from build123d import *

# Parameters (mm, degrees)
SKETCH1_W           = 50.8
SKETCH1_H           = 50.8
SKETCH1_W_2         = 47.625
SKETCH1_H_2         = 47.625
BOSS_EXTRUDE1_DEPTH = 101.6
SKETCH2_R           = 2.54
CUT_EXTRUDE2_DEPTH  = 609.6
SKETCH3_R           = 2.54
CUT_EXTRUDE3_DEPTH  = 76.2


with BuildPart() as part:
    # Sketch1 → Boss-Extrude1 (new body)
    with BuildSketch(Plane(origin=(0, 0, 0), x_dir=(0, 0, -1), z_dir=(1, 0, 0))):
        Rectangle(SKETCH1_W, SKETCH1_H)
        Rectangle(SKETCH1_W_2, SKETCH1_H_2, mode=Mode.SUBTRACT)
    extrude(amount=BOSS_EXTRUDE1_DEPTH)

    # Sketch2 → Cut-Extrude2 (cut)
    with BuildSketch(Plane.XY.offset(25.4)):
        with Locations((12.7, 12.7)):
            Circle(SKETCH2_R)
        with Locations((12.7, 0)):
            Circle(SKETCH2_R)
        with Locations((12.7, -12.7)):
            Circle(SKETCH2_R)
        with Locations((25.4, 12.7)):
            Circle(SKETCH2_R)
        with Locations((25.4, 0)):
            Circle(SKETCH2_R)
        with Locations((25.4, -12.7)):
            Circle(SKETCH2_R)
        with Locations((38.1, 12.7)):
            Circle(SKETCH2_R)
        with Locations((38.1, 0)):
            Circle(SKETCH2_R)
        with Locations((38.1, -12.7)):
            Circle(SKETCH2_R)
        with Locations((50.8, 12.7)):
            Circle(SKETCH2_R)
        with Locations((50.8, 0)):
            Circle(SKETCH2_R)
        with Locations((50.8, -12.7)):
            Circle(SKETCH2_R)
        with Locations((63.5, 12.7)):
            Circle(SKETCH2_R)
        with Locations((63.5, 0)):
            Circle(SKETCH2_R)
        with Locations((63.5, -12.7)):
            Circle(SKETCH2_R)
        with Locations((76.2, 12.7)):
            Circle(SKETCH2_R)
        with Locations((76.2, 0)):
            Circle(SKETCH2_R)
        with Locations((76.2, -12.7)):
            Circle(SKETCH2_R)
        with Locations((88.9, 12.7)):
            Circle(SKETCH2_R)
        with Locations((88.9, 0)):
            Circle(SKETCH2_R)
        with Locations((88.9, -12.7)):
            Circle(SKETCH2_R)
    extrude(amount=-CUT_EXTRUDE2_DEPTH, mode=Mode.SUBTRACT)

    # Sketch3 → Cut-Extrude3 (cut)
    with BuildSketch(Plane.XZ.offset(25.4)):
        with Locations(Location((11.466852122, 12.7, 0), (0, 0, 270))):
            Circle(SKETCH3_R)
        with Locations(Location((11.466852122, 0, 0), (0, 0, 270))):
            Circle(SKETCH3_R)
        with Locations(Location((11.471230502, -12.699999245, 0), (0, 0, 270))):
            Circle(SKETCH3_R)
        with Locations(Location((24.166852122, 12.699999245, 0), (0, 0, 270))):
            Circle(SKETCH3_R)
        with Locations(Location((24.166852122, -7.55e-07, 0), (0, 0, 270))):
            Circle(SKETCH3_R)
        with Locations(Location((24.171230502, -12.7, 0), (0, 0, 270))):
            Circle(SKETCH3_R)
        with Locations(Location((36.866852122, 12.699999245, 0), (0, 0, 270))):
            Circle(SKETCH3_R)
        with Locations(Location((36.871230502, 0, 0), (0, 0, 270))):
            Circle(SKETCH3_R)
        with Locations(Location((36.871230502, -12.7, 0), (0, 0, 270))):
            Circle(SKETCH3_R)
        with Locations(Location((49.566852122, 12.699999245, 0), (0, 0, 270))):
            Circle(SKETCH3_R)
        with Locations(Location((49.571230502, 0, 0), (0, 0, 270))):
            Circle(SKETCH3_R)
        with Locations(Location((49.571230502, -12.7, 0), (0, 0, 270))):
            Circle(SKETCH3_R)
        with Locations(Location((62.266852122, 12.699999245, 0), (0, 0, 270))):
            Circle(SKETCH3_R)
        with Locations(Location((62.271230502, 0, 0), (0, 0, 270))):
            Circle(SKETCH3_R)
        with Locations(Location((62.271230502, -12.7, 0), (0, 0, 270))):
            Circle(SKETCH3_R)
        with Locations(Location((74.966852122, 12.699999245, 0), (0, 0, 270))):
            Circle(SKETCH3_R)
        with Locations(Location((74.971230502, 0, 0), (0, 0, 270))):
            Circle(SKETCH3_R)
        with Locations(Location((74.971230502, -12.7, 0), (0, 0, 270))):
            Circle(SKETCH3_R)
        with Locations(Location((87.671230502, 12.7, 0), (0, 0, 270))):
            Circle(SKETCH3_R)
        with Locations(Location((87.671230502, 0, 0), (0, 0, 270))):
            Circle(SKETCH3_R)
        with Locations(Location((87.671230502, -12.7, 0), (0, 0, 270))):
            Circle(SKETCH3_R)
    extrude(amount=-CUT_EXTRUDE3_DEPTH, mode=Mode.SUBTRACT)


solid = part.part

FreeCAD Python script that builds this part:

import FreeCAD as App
import Part
import Sketcher
Q = App.Units.Quantity

doc = App.newDocument("Part")
body = doc.addObject("PartDesign::Body", "Body")

sketch1 = body.newObject("Sketcher::SketchObject", "Sketch")
sketch1.AttachmentSupport = (doc.getObject("YZ_Plane"), [""])
sketch1.MapMode = "FlatFace"
sketch1.addGeometry([
    Part.LineSegment(App.Vector(25.4, 25.4, 0), App.Vector(-25.4, 25.4, 0)),
    Part.LineSegment(App.Vector(-25.4, 25.4, 0), App.Vector(-25.4, -25.4, 0)),
    Part.LineSegment(App.Vector(-25.4, -25.4, 0), App.Vector(25.4, -25.4, 0)),
    Part.LineSegment(App.Vector(25.4, -25.4, 0), App.Vector(25.4, 25.4, 0)),
    Part.LineSegment(App.Vector(-23.8125, -23.8125, 0), App.Vector(-23.8125, 23.8125, 0)),
    Part.LineSegment(App.Vector(-23.8125, 23.8125, 0), App.Vector(23.8125, 23.8125, 0)),
    Part.LineSegment(App.Vector(23.8125, 23.8125, 0), App.Vector(23.8125, -23.8125, 0)),
    Part.LineSegment(App.Vector(23.8125, -23.8125, 0), App.Vector(-23.8125, -23.8125, 0)),
], False)
sketch1.addConstraint([
    Sketcher.Constraint("Coincident", 0, 2, 1, 1),
    Sketcher.Constraint("Coincident", 1, 2, 2, 1),
    Sketcher.Constraint("Coincident", 2, 2, 3, 1),
    Sketcher.Constraint("Coincident", 3, 2, 0, 1),
    Sketcher.Constraint("Coincident", 4, 2, 5, 1),
    Sketcher.Constraint("Coincident", 5, 2, 6, 1),
    Sketcher.Constraint("Coincident", 6, 2, 7, 1),
    Sketcher.Constraint("Coincident", 7, 2, 4, 1),
    Sketcher.Constraint("Horizontal", 0),
    Sketcher.Constraint("Vertical", 1),
    Sketcher.Constraint("Horizontal", 2),
    Sketcher.Constraint("Vertical", 3),
    Sketcher.Constraint("Vertical", 4),
    Sketcher.Constraint("Horizontal", 5),
    Sketcher.Constraint("Vertical", 6),
    Sketcher.Constraint("Horizontal", 7),
    Sketcher.Constraint("Symmetric", 0, 2, 2, 2, -1, 1),
    Sketcher.Constraint("Symmetric", 4, 2, 6, 2, -1, 1),
    Sketcher.Constraint("Equal", 2, 1),
    Sketcher.Constraint("Equal", 7, 4),
    Sketcher.Constraint("DistanceX", 0, 2, 0, 1, Q("2 in")),
    Sketcher.Constraint("DistanceX", 5, 1, 5, 2, Q("1.875 in")),
])
pad1 = body.newObject("PartDesign::Pad", "Pad")
pad1.Profile = sketch1
pad1.Length = Q("4 in")

sketch2 = body.newObject("Sketcher::SketchObject", "Sketch001")
sketch2.AttachmentSupport = (doc.getObject("XY_Plane"), [""])
sketch2.MapMode = "FlatFace"
sketch2.AttachmentOffset = App.Placement(App.Vector(0, 0, 1 * 25.4), App.Rotation())
sketch2.addGeometry([
    Part.Circle(App.Vector(12.7, 12.7, 0), App.Vector(0, 0, 1), 2.54),
    Part.Circle(App.Vector(12.7, 0, 0), App.Vector(0, 0, 1), 2.54),
    Part.Circle(App.Vector(12.7, -12.7, 0), App.Vector(0, 0, 1), 2.54),
    Part.Circle(App.Vector(25.4, 12.7, 0), App.Vector(0, 0, 1), 2.54),
    Part.Circle(App.Vector(25.4, 0, 0), App.Vector(0, 0, 1), 2.54),
    Part.Circle(App.Vector(25.4, -12.7, 0), App.Vector(0, 0, 1), 2.54),
    Part.Circle(App.Vector(38.1, 12.7, 0), App.Vector(0, 0, 1), 2.54),
    Part.Circle(App.Vector(38.1, 0, 0), App.Vector(0, 0, 1), 2.54),
    Part.Circle(App.Vector(38.1, -12.7, 0), App.Vector(0, 0, 1), 2.54),
    Part.Circle(App.Vector(50.8, 12.7, 0), App.Vector(0, 0, 1), 2.54),
    Part.Circle(App.Vector(50.8, 0, 0), App.Vector(0, 0, 1), 2.54),
    Part.Circle(App.Vector(50.8, -12.7, 0), App.Vector(0, 0, 1), 2.54),
    Part.Circle(App.Vector(63.5, 12.7, 0), App.Vector(0, 0, 1), 2.54),
    Part.Circle(App.Vector(63.5, 0, 0), App.Vector(0, 0, 1), 2.54),
    Part.Circle(App.Vector(63.5, -12.7, 0), App.Vector(0, 0, 1), 2.54),
    Part.Circle(App.Vector(76.2, 12.7, 0), App.Vector(0, 0, 1), 2.54),
    Part.Circle(App.Vector(76.2, 0, 0), App.Vector(0, 0, 1), 2.54),
    Part.Circle(App.Vector(76.2, -12.7, 0), App.Vector(0, 0, 1), 2.54),
    Part.Circle(App.Vector(88.9, 12.7, 0), App.Vector(0, 0, 1), 2.54),
    Part.Circle(App.Vector(88.9, 0, 0), App.Vector(0, 0, 1), 2.54),
    Part.Circle(App.Vector(88.9, -12.7, 0), App.Vector(0, 0, 1), 2.54),
], False)
sketch2.addConstraint([
    Sketcher.Constraint("Equal", 0, 1),
    Sketcher.Constraint("Equal", 1, 2),
    Sketcher.Constraint("Equal", 2, 3),
    Sketcher.Constraint("Equal", 3, 4),
    Sketcher.Constraint("Equal", 4, 5),
    Sketcher.Constraint("Equal", 5, 6),
    Sketcher.Constraint("Equal", 6, 7),
    Sketcher.Constraint("Equal", 7, 8),
    Sketcher.Constraint("Equal", 8, 9),
    Sketcher.Constraint("Equal", 9, 10),
    Sketcher.Constraint("Equal", 10, 11),
    Sketcher.Constraint("Equal", 11, 12),
    Sketcher.Constraint("Equal", 12, 13),
    Sketcher.Constraint("Equal", 13, 14),
    Sketcher.Constraint("Equal", 14, 15),
    Sketcher.Constraint("Equal", 15, 16),
    Sketcher.Constraint("Equal", 16, 17),
    Sketcher.Constraint("Equal", 17, 18),
    Sketcher.Constraint("Equal", 18, 19),
    Sketcher.Constraint("Equal", 19, 20),
    Sketcher.Constraint("Symmetric", 0, 3, 2, 3, -1),
    Sketcher.Constraint("Symmetric", 3, 3, 5, 3, -1),
    Sketcher.Constraint("Symmetric", 6, 3, 8, 3, -1),
    Sketcher.Constraint("Symmetric", 9, 3, 11, 3, -1),
    Sketcher.Constraint("Symmetric", 12, 3, 14, 3, -1),
    Sketcher.Constraint("Symmetric", 15, 3, 17, 3, -1),
    Sketcher.Constraint("Symmetric", 18, 3, 20, 3, -1),
    Sketcher.Constraint("PointOnObject", 1, 3, -1),
    Sketcher.Constraint("PointOnObject", 4, 3, -1),
    Sketcher.Constraint("PointOnObject", 7, 3, -1),
    Sketcher.Constraint("PointOnObject", 10, 3, -1),
    Sketcher.Constraint("PointOnObject", 13, 3, -1),
    Sketcher.Constraint("PointOnObject", 16, 3, -1),
    Sketcher.Constraint("PointOnObject", 19, 3, -1),
    Sketcher.Constraint("Horizontal", 0, 3, 3, 3),
    Sketcher.Constraint("Horizontal", 3, 3, 6, 3),
    Sketcher.Constraint("Horizontal", 6, 3, 9, 3),
    Sketcher.Constraint("Horizontal", 9, 3, 12, 3),
    Sketcher.Constraint("Horizontal", 12, 3, 15, 3),
    Sketcher.Constraint("Horizontal", 15, 3, 18, 3),
    Sketcher.Constraint("Vertical", 0, 3, 1, 3),
    Sketcher.Constraint("Vertical", 3, 3, 4, 3),
    Sketcher.Constraint("Vertical", 6, 3, 7, 3),
    Sketcher.Constraint("Vertical", 9, 3, 10, 3),
    Sketcher.Constraint("Vertical", 12, 3, 13, 3),
    Sketcher.Constraint("Vertical", 15, 3, 16, 3),
    Sketcher.Constraint("Vertical", 18, 3, 19, 3),
    Sketcher.Constraint("Diameter", 0, Q("0.2 in")),
    Sketcher.Constraint("DistanceX", -1, 1, 3, 3, Q("1 in")),
    Sketcher.Constraint("DistanceX", -1, 1, 9, 3, Q("2 in")),
    Sketcher.Constraint("DistanceX", -1, 1, 15, 3, Q("3 in")),
    Sketcher.Constraint("DistanceY", 2, 3, 0, 3, Q("1 in")),
    Sketcher.Constraint("DistanceX", 0, 3, 6, 3, Q("1 in")),
    Sketcher.Constraint("DistanceX", 6, 3, 12, 3, Q("1 in")),
    Sketcher.Constraint("DistanceX", 12, 3, 18, 3, Q("1 in")),
    Sketcher.Constraint("DistanceX", -1, 1, 0, 3, Q("0.5 in")),
])
pocket1 = body.newObject("PartDesign::Pocket", "Pocket")
pocket1.Profile = sketch2
pocket1.Length = Q("24 in")

sketch3 = body.newObject("Sketcher::SketchObject", "Sketch002")
sketch3.AttachmentSupport = (doc.getObject("XZ_Plane"), [""])
sketch3.MapMode = "FlatFace"
sketch3.AttachmentOffset = App.Placement(App.Vector(0, 0, 1 * 25.4), App.Rotation())
sketch3.addGeometry([
    Part.Circle(App.Vector(11.466852, 12.7, 0), App.Vector(0, 0, 1), 2.54),
    Part.Circle(App.Vector(11.466852, 0, 0), App.Vector(0, 0, 1), 2.54),
    Part.Circle(App.Vector(11.471231, -12.699999, 0), App.Vector(0, 0, 1), 2.54),
    Part.Circle(App.Vector(24.166852, 12.699999, 0), App.Vector(0, 0, 1), 2.54),
    Part.Circle(App.Vector(24.166852, -0.000001, 0), App.Vector(0, 0, 1), 2.54),
    Part.Circle(App.Vector(24.171231, -12.7, 0), App.Vector(0, 0, 1), 2.54),
    Part.Circle(App.Vector(36.866852, 12.699999, 0), App.Vector(0, 0, 1), 2.54),
    Part.Circle(App.Vector(36.871231, 0, 0), App.Vector(0, 0, 1), 2.54),
    Part.Circle(App.Vector(36.871231, -12.7, 0), App.Vector(0, 0, 1), 2.54),
    Part.Circle(App.Vector(49.566852, 12.699999, 0), App.Vector(0, 0, 1), 2.54),
    Part.Circle(App.Vector(49.571231, 0, 0), App.Vector(0, 0, 1), 2.54),
    Part.Circle(App.Vector(49.571231, -12.7, 0), App.Vector(0, 0, 1), 2.54),
    Part.Circle(App.Vector(62.266852, 12.699999, 0), App.Vector(0, 0, 1), 2.54),
    Part.Circle(App.Vector(62.271231, 0, 0), App.Vector(0, 0, 1), 2.54),
    Part.Circle(App.Vector(62.271231, -12.7, 0), App.Vector(0, 0, 1), 2.54),
    Part.Circle(App.Vector(74.966852, 12.699999, 0), App.Vector(0, 0, 1), 2.54),
    Part.Circle(App.Vector(74.971231, 0, 0), App.Vector(0, 0, 1), 2.54),
    Part.Circle(App.Vector(74.971231, -12.7, 0), App.Vector(0, 0, 1), 2.54),
    Part.Circle(App.Vector(87.671231, 12.7, 0), App.Vector(0, 0, 1), 2.54),
    Part.Circle(App.Vector(87.671231, 0, 0), App.Vector(0, 0, 1), 2.54),
    Part.Circle(App.Vector(87.671231, -12.7, 0), App.Vector(0, 0, 1), 2.54),
], False)
sketch3.addConstraint([
    Sketcher.Constraint("Equal", 0, 1),
    Sketcher.Constraint("Equal", 1, 2),
    Sketcher.Constraint("Equal", 2, 3),
    Sketcher.Constraint("Equal", 3, 4),
    Sketcher.Constraint("Equal", 4, 5),
    Sketcher.Constraint("Equal", 5, 6),
    Sketcher.Constraint("Equal", 6, 7),
    Sketcher.Constraint("Equal", 7, 8),
    Sketcher.Constraint("Equal", 8, 9),
    Sketcher.Constraint("Equal", 9, 10),
    Sketcher.Constraint("Equal", 10, 11),
    Sketcher.Constraint("Equal", 11, 12),
    Sketcher.Constraint("Equal", 12, 13),
    Sketcher.Constraint("Equal", 13, 14),
    Sketcher.Constraint("Equal", 14, 15),
    Sketcher.Constraint("Equal", 15, 16),
    Sketcher.Constraint("Equal", 16, 17),
    Sketcher.Constraint("Equal", 17, 18),
    Sketcher.Constraint("Equal", 18, 19),
    Sketcher.Constraint("Equal", 19, 20),
    Sketcher.Constraint("Symmetric", 18, 3, 20, 3, -1),
    Sketcher.Constraint("PointOnObject", 1, 3, -1),
    Sketcher.Constraint("PointOnObject", 4, 3, -1),
    Sketcher.Constraint("PointOnObject", 7, 3, -1),
    Sketcher.Constraint("PointOnObject", 10, 3, -1),
    Sketcher.Constraint("PointOnObject", 13, 3, -1),
    Sketcher.Constraint("PointOnObject", 16, 3, -1),
    Sketcher.Constraint("PointOnObject", 19, 3, -1),
    Sketcher.Constraint("Horizontal", 0, 3, 3, 3),
    Sketcher.Constraint("Horizontal", 2, 3, 5, 3),
    Sketcher.Constraint("Horizontal", 3, 3, 6, 3),
    Sketcher.Constraint("Horizontal", 5, 3, 8, 3),
    Sketcher.Constraint("Horizontal", 6, 3, 9, 3),
    Sketcher.Constraint("Horizontal", 8, 3, 11, 3),
    Sketcher.Constraint("Horizontal", 9, 3, 12, 3),
    Sketcher.Constraint("Horizontal", 11, 3, 14, 3),
    Sketcher.Constraint("Horizontal", 12, 3, 15, 3),
    Sketcher.Constraint("Horizontal", 14, 3, 17, 3),
    Sketcher.Constraint("Horizontal", 15, 3, 18, 3),
    Sketcher.Constraint("Horizontal", 17, 3, 20, 3),
    Sketcher.Constraint("Vertical", 0, 3, 1, 3),
    Sketcher.Constraint("Vertical", 3, 3, 4, 3),
    Sketcher.Constraint("Vertical", 7, 3, 8, 3),
    Sketcher.Constraint("Vertical", 10, 3, 11, 3),
    Sketcher.Constraint("Vertical", 13, 3, 14, 3),
    Sketcher.Constraint("Vertical", 16, 3, 17, 3),
    Sketcher.Constraint("Vertical", 18, 3, 19, 3),
    Sketcher.Constraint("Diameter", 0, Q("0.2 in")),
    Sketcher.Constraint("DistanceY", 2, 3, 0, 3, Q("1 in")),
    Sketcher.Constraint("DistanceX", 0, 3, 6, 3, Q("1 in")),
    Sketcher.Constraint("DistanceX", 2, 3, 8, 3, Q("1 in")),
    Sketcher.Constraint("DistanceX", 3, 3, 9, 3, Q("1 in")),
    Sketcher.Constraint("DistanceX", 5, 3, 11, 3, Q("1 in")),
    Sketcher.Constraint("DistanceX", 6, 3, 12, 3, Q("1 in")),
    Sketcher.Constraint("DistanceX", 7, 3, 13, 3, Q("1 in")),
    Sketcher.Constraint("DistanceX", 9, 3, 15, 3, Q("1 in")),
    Sketcher.Constraint("DistanceX", 10, 3, 16, 3, Q("1 in")),
    Sketcher.Constraint("DistanceX", 13, 3, 18, 3, Q("1 in")),
    Sketcher.Constraint("DistanceX", 0, 3, 3, 3, Q("0.5 in")),
    Sketcher.Constraint("DistanceX", 2, 3, 5, 3, Q("0.5 in")),
    Sketcher.Constraint("DistanceX", -1, 1, 2, 3, 11.471231),
    Sketcher.Constraint("DistanceX", 1, 3, 2, 3, 0.004378),
])
pocket2 = body.newObject("PartDesign::Pocket", "Pocket001")
pocket2.Profile = sketch3
pocket2.Length = Q("3 in")

doc.recompute()
